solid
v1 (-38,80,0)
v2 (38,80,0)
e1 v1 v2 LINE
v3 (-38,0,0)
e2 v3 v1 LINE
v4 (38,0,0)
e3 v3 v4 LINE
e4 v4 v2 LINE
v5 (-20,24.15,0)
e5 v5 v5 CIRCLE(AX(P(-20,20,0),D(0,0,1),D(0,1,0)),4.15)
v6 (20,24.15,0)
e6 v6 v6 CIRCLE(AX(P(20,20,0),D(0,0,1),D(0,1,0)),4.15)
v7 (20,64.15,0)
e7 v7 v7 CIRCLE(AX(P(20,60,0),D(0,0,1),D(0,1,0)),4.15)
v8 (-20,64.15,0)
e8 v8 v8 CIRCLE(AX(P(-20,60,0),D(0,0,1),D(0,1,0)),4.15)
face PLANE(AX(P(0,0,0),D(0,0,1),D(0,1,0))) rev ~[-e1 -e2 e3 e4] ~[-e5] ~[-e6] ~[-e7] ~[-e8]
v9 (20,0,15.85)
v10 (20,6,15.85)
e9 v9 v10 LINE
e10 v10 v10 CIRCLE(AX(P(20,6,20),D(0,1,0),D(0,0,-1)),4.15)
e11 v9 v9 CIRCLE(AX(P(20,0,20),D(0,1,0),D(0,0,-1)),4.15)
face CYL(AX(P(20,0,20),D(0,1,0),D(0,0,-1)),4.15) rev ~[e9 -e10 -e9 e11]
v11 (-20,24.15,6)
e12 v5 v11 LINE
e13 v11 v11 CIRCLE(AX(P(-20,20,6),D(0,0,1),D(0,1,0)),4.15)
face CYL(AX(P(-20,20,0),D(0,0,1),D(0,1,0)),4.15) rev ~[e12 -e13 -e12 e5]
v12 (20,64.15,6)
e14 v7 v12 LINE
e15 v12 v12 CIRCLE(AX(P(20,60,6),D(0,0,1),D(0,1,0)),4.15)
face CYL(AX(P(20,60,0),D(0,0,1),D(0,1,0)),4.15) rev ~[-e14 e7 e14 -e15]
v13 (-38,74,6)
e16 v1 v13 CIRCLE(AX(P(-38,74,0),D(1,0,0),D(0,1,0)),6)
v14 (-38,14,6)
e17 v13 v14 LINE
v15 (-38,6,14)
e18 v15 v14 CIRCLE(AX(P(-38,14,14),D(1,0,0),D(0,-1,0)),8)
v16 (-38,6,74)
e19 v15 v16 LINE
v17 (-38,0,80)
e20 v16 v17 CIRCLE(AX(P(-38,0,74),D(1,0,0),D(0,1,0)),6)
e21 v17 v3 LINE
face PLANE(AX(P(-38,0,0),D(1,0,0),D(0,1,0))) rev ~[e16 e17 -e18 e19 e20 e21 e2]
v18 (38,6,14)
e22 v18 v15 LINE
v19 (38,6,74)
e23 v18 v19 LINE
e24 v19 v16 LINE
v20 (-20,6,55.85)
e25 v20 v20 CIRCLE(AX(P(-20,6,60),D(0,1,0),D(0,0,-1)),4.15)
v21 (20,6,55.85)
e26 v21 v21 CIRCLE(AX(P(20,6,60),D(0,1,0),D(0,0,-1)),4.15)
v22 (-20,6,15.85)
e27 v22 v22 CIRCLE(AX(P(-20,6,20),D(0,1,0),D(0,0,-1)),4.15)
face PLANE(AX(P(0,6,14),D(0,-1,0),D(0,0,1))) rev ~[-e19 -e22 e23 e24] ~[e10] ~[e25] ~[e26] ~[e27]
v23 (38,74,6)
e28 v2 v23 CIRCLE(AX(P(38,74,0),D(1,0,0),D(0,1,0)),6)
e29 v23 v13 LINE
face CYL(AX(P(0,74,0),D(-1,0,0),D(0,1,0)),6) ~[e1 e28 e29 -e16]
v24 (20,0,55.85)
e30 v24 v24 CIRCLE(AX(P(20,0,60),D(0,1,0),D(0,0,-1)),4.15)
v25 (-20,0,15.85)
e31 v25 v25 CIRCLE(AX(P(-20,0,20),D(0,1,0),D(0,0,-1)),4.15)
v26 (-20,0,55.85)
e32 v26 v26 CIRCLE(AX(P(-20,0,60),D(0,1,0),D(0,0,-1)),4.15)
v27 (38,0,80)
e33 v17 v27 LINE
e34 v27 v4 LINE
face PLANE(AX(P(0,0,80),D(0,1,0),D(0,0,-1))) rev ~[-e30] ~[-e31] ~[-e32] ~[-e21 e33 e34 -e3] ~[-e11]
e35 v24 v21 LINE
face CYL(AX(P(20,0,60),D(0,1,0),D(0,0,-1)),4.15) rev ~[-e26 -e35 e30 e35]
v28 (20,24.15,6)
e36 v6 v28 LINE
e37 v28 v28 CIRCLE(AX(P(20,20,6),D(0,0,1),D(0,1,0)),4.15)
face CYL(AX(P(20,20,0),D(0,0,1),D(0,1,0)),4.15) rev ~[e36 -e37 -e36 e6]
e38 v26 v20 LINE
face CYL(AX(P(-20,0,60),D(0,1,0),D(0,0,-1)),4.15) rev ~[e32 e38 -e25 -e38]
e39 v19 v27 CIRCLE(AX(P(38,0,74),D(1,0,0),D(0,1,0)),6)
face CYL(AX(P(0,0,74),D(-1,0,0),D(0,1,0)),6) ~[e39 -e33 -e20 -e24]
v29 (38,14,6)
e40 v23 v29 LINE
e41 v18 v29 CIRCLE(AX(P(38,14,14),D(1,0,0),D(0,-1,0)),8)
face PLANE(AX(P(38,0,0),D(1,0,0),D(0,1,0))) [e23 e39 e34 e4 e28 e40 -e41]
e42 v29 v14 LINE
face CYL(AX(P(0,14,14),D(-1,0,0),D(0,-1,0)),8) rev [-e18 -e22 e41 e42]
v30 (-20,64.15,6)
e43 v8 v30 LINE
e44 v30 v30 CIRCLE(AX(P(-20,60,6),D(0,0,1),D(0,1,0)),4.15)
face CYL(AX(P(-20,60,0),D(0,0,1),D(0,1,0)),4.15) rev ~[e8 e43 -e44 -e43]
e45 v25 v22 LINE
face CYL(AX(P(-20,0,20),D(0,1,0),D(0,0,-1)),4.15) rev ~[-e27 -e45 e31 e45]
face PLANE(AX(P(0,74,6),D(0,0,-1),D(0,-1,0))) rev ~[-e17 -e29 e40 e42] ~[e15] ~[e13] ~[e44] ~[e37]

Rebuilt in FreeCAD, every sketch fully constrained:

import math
import FreeCAD as App
import Part
import Sketcher

V = App.Vector
Q = App.Units.Quantity

doc = App.newDocument("Part")
body = doc.addObject("PartDesign::Body", "Body")

# Sketch on YZ plane
sketch1 = body.newObject("Sketcher::SketchObject", "Sketch")
sketch1.AttachmentSupport = (doc.getObject("YZ_Plane"), [""])
sketch1.MapMode = "FlatFace"
sketch1.addGeometry([
    Part.ArcOfCircle(Part.Circle(V(0, 74, 0), V(0, 0, 1), 6), math.radians(0), math.radians(90)),  # 0
    Part.LineSegment(V(0, 80, 0), V(0, 0, 0)),  # 1
    Part.LineSegment(V(0, 0, 0), V(80, 0, 0)),  # 2
    Part.ArcOfCircle(Part.Circle(V(74, 0, 0), V(0, 0, 1), 6), math.radians(0), math.radians(90)),  # 3
    Part.LineSegment(V(74, 6, 0), V(14, 6, 0)),  # 4
    Part.ArcOfCircle(Part.Circle(V(14, 14, 0), V(0, 0, 1), 8), math.radians(180), math.radians(270)),  # 5
    Part.LineSegment(V(6, 14, 0), V(6, 74, 0)),  # 6
], False)
sketch1.addConstraint([
    Sketcher.Constraint("Coincident", 0, 2, 1, 1),
    Sketcher.Constraint("Coincident", 1, 2, 2, 1),
    Sketcher.Constraint("Coincident", 2, 2, 3, 1),
    Sketcher.Constraint("Tangent", 3, 2, 4, 1),
    Sketcher.Constraint("Tangent", 4, 2, 5, 2),
    Sketcher.Constraint("Tangent", 5, 1, 6, 1),
    Sketcher.Constraint("Tangent", 6, 2, 0, 1),
    Sketcher.Constraint("Vertical", 1),
    Sketcher.Constraint("Horizontal", 2),
    Sketcher.Constraint("Horizontal", 4),
    Sketcher.Constraint("Vertical", 6),
    Sketcher.Constraint("Coincident", 1, 2, -1, 1),
    Sketcher.Constraint("Equal", 0, 3),
    Sketcher.Constraint("PointOnObject", 0, 3, -2),
    Sketcher.Constraint("PointOnObject", 3, 3, -1),
    Sketcher.Constraint("Equal", 2, 1),
    Sketcher.Constraint("Radius", 0, Q("6 mm")),
    Sketcher.Constraint("Radius", 5, Q("8 mm")),
    Sketcher.Constraint("DistanceX", 2, 1, 2, 2, Q("80 mm")),
])
pad1 = body.newObject("PartDesign::Pad", "Pad")
pad1.Profile = sketch1
pad1.Length = 76
pad1.Midplane = True

# Sketch on XY plane
sketch2 = body.newObject("Sketcher::SketchObject", "Sketch001")
sketch2.AttachmentSupport = (doc.getObject("XY_Plane"), [""])
sketch2.MapMode = "FlatFace"
sketch2.addGeometry(Part.Circle(V(20, 60, 0), V(0, 0, 1), 4.2), False)
sketch2.addConstraint([
    Sketcher.Constraint("Diameter", 0, Q("8.3 mm")),
    Sketcher.Constraint("DistanceX", -1, 1, 0, 3, Q("20 mm")),
    Sketcher.Constraint("DistanceY", -1, 1, 0, 3, Q("60 mm")),
])
doc.recompute()
hole = body.newObject("PartDesign::Hole", "Hole")
hole.Profile = sketch2
hole.ThreadType = "None"
hole.Diameter = 8.3
hole.DepthType = "Dimension"
hole.Depth = 6.6
hole.DrillPoint = "Flat"
hole.Reversed = True

# Sketch on XY plane
sketch3 = body.newObject("Sketcher::SketchObject", "Sketch002")
sketch3.AttachmentSupport = (doc.getObject("XY_Plane"), [""])
sketch3.MapMode = "FlatFace"
sketch3.addGeometry(Part.Circle(V(-20, 20, 0), V(0, 0, 1), 4.2), False)
sketch3.addConstraint([
    Sketcher.Constraint("Diameter", 0, Q("8.3 mm")),
    Sketcher.Constraint("DistanceX", 0, 3, -1, 1, Q("20 mm")),
    Sketcher.Constraint("DistanceY", -1, 1, 0, 3, Q("20 mm")),
])
doc.recompute()
hole2 = body.newObject("PartDesign::Hole", "Hole001")
hole2.Profile = sketch3
hole2.ThreadType = "None"
hole2.Diameter = 8.3
hole2.DepthType = "Dimension"
hole2.Depth = 6.6
hole2.DrillPoint = "Flat"
hole2.Reversed = True

# Sketch on XY plane
sketch4 = body.newObject("Sketcher::SketchObject", "Sketch003")
sketch4.AttachmentSupport = (doc.getObject("XY_Plane"), [""])
sketch4.MapMode = "FlatFace"
sketch4.addGeometry(Part.Circle(V(-20, 60, 0), V(0, 0, 1), 4.2), False)
sketch4.addConstraint([
    Sketcher.Constraint("Diameter", 0, Q("8.3 mm")),
    Sketcher.Constraint("DistanceX", 0, 3, -1, 1, Q("20 mm")),
    Sketcher.Constraint("DistanceY", -1, 1, 0, 3, Q("60 mm")),
])
doc.recompute()
hole3 = body.newObject("PartDesign::Hole", "Hole002")
hole3.Profile = sketch4
hole3.ThreadType = "None"
hole3.Diameter = 8.3
hole3.DepthType = "Dimension"
hole3.Depth = 6.6
hole3.DrillPoint = "Flat"
hole3.Reversed = True

# Sketch on XZ plane
sketch5 = body.newObject("Sketcher::SketchObject", "Sketch004")
sketch5.AttachmentSupport = (doc.getObject("XZ_Plane"), [""])
sketch5.MapMode = "FlatFace"
sketch5.addGeometry(Part.Circle(V(20, 20, 0), V(0, 0, 1), 4.2), False)
sketch5.addConstraint([
    Sketcher.Constraint("Diameter", 0, Q("8.3 mm")),
    Sketcher.Constraint("DistanceX", -1, 1, 0, 3, Q("20 mm")),
    Sketcher.Constraint("DistanceY", -1, 1, 0, 3, Q("20 mm")),
])
doc.recompute()
hole4 = body.newObject("PartDesign::Hole", "Hole003")
hole4.Profile = sketch5
hole4.ThreadType = "None"
hole4.Diameter = 8.3
hole4.DepthType = "Dimension"
hole4.Depth = 6.6
hole4.DrillPoint = "Flat"

# Sketch on XZ plane
sketch6 = body.newObject("Sketcher::SketchObject", "Sketch005")
sketch6.AttachmentSupport = (doc.getObject("XZ_Plane"), [""])
sketch6.MapMode = "FlatFace"
sketch6.addGeometry(Part.Circle(V(20, 60, 0), V(0, 0, 1), 4.2), False)
sketch6.addConstraint([
    Sketcher.Constraint("Diameter", 0, Q("8.3 mm")),
    Sketcher.Constraint("DistanceX", -1, 1, 0, 3, Q("20 mm")),
    Sketcher.Constraint("DistanceY", -1, 1, 0, 3, Q("60 mm")),
])
doc.recompute()
hole5 = body.newObject("PartDesign::Hole", "Hole004")
hole5.Profile = sketch6
hole5.ThreadType = "None"
hole5.Diameter = 8.3
hole5.DepthType = "Dimension"
hole5.Depth = 6.6
hole5.DrillPoint = "Flat"

# Sketch on XZ plane
sketch7 = body.newObject("Sketcher::SketchObject", "Sketch006")
sketch7.AttachmentSupport = (doc.getObject("XZ_Plane"), [""])
sketch7.MapMode = "FlatFace"
sketch7.addGeometry(Part.Circle(V(-20, 20, 0), V(0, 0, 1), 4.2), False)
sketch7.addConstraint([
    Sketcher.Constraint("Diameter", 0, Q("8.3 mm")),
    Sketcher.Constraint("DistanceX", 0, 3, -1, 1, Q("20 mm")),
    Sketcher.Constraint("DistanceY", -1, 1, 0, 3, Q("20 mm")),
])
doc.recompute()
hole6 = body.newObject("PartDesign::Hole", "Hole005")
hole6.Profile = sketch7
hole6.ThreadType = "None"
hole6.Diameter = 8.3
hole6.DepthType = "Dimension"
hole6.Depth = 6.6
hole6.DrillPoint = "Flat"

# Sketch on XZ plane
sketch8 = body.newObject("Sketcher::SketchObject", "Sketch007")
sketch8.AttachmentSupport = (doc.getObject("XZ_Plane"), [""])
sketch8.MapMode = "FlatFace"
sketch8.addGeometry(Part.Circle(V(-20, 60, 0), V(0, 0, 1), 4.2), False)
sketch8.addConstraint([
    Sketcher.Constraint("Diameter", 0, Q("8.3 mm")),
    Sketcher.Constraint("DistanceX", 0, 3, -1, 1, Q("20 mm")),
    Sketcher.Constraint("DistanceY", -1, 1, 0, 3, Q("60 mm")),
])
doc.recompute()
hole7 = body.newObject("PartDesign::Hole", "Hole006")
hole7.Profile = sketch8
hole7.ThreadType = "None"
hole7.Diameter = 8.3
hole7.DepthType = "Dimension"
hole7.Depth = 6.6
hole7.DrillPoint = "Flat"

# Sketch on XY plane
sketch9 = body.newObject("Sketcher::SketchObject", "Sketch008")
sketch9.AttachmentSupport = (doc.getObject("XY_Plane"), [""])
sketch9.MapMode = "FlatFace"
sketch9.addGeometry(Part.Circle(V(20, 20, 0), V(0, 0, 1), 4.2), False)
sketch9.addConstraint([
    Sketcher.Constraint("Diameter", 0, Q("8.3 mm")),
    Sketcher.Constraint("DistanceX", -1, 1, 0, 3, Q("20 mm")),
    Sketcher.Constraint("DistanceY", -1, 1, 0, 3, Q("20 mm")),
])
doc.recompute()
hole8 = body.newObject("PartDesign::Hole", "Hole007")
hole8.Profile = sketch9
hole8.ThreadType = "None"
hole8.Diameter = 8.3
hole8.DepthType = "Dimension"
hole8.Depth = 6.6
hole8.DrillPoint = "Flat"
hole8.Reversed = True

doc.recompute()
